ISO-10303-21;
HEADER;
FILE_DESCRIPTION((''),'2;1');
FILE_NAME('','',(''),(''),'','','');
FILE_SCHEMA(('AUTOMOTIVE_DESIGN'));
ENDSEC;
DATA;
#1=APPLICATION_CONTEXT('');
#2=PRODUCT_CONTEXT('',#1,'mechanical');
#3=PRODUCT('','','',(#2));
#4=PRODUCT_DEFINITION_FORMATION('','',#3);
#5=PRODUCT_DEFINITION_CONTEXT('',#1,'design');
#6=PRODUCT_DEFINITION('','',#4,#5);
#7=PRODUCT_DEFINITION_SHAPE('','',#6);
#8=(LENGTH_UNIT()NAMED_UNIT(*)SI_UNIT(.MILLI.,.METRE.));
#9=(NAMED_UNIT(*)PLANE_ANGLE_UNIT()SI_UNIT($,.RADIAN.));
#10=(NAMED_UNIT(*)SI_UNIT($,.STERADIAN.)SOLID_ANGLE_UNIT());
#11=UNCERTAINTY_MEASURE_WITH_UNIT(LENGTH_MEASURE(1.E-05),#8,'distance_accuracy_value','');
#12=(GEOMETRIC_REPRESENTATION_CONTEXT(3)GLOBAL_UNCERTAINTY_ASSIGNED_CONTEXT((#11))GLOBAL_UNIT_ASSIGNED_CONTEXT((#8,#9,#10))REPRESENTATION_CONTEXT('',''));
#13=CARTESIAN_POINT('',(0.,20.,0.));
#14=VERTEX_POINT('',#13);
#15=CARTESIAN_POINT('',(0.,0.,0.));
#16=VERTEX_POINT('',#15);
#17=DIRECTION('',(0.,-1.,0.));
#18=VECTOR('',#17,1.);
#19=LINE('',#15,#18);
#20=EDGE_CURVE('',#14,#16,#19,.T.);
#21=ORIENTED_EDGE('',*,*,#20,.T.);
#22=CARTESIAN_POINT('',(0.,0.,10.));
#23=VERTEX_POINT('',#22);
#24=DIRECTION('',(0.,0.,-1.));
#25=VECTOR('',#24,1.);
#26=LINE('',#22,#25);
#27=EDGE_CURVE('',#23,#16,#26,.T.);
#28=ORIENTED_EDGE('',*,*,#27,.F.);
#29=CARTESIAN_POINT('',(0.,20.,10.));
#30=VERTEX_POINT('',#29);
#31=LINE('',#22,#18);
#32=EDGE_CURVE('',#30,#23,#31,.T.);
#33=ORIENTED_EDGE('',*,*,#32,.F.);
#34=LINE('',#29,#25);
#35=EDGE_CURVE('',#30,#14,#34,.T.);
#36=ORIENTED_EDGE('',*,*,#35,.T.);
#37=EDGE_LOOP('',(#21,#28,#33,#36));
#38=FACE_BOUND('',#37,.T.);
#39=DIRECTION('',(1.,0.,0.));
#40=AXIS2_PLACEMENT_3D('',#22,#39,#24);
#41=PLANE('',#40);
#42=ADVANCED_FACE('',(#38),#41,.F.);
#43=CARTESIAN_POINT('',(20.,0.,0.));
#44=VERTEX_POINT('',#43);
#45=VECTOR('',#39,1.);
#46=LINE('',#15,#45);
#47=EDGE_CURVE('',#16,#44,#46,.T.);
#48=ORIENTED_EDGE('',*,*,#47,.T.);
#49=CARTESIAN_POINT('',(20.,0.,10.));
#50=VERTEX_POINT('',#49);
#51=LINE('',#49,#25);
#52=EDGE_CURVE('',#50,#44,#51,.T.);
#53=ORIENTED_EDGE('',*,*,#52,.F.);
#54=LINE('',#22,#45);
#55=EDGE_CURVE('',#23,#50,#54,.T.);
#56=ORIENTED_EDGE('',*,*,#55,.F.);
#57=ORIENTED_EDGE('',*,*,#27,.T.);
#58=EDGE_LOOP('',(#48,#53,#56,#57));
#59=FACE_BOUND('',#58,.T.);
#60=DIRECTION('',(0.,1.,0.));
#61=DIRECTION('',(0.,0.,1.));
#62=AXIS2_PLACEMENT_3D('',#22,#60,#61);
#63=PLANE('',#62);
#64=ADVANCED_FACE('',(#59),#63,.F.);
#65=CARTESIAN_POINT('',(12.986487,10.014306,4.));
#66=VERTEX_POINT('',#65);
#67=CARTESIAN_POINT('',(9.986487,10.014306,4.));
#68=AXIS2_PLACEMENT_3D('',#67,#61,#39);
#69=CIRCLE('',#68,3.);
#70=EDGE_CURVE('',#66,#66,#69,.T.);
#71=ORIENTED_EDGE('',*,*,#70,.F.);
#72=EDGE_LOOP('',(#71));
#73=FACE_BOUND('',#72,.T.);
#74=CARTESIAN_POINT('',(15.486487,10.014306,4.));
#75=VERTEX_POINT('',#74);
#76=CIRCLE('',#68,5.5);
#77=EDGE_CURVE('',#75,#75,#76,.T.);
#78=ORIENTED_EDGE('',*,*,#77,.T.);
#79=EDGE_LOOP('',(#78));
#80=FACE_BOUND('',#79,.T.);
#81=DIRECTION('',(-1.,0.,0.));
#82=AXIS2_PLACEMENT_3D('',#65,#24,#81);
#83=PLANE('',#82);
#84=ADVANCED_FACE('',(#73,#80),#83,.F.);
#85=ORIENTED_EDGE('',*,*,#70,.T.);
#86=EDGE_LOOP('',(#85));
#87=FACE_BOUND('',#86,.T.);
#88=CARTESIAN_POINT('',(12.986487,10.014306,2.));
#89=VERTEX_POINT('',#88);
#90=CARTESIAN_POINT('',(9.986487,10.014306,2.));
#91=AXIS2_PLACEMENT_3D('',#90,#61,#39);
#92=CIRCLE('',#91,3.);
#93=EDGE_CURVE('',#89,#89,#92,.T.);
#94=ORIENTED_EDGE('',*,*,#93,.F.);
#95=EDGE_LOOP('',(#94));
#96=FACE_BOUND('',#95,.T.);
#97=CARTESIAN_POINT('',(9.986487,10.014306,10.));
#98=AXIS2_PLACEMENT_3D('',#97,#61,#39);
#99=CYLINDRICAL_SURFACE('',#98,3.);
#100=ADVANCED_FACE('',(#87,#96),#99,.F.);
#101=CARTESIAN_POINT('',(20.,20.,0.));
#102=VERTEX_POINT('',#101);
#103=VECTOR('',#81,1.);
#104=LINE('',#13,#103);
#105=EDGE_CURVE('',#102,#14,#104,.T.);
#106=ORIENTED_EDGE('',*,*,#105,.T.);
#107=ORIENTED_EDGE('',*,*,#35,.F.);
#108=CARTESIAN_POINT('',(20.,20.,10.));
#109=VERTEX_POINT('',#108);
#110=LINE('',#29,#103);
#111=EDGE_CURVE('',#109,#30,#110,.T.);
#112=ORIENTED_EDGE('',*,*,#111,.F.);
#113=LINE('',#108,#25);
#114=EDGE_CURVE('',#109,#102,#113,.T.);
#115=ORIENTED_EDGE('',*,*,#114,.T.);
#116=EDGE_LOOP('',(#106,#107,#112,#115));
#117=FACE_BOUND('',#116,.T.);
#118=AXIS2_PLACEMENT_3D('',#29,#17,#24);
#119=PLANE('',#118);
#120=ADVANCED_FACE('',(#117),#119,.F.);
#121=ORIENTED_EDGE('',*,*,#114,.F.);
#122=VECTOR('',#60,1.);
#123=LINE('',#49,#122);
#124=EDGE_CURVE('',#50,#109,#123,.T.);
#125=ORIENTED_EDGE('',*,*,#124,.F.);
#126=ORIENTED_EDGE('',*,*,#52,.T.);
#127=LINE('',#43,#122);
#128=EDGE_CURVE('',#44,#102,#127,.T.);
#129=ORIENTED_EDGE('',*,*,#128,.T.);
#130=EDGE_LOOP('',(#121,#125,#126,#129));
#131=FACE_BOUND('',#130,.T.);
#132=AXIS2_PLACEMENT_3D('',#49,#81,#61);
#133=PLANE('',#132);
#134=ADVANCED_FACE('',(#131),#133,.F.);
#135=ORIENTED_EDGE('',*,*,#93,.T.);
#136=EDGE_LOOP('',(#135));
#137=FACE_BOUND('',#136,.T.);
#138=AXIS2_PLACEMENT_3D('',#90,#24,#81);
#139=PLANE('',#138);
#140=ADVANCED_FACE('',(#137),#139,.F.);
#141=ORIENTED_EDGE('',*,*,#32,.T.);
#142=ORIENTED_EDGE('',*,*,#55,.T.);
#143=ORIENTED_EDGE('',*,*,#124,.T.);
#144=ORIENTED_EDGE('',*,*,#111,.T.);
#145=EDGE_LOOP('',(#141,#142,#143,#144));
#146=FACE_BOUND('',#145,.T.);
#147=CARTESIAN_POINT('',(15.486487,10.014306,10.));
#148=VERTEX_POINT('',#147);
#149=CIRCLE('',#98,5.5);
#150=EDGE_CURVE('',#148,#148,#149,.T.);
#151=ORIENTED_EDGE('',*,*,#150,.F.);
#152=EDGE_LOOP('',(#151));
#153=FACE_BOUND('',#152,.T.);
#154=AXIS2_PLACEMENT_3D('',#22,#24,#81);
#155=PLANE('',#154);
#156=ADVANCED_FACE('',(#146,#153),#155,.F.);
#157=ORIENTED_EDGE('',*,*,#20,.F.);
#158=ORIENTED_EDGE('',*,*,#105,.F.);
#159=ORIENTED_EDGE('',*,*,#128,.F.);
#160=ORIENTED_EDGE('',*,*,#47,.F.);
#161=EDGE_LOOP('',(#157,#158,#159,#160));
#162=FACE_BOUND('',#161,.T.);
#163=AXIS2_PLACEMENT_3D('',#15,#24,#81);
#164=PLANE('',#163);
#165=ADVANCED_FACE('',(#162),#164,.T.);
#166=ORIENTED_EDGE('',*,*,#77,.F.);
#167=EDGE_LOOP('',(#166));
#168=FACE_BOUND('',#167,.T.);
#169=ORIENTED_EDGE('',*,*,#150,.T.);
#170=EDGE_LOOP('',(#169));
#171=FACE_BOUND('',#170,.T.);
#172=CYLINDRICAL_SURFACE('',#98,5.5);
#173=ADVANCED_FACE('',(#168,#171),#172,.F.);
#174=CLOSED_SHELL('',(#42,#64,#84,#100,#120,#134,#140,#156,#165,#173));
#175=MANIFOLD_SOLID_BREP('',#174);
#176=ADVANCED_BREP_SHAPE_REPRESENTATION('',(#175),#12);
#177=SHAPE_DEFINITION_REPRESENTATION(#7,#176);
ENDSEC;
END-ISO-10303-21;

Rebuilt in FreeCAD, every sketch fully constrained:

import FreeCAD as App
import Part
import Sketcher

V = App.Vector
Q = App.Units.Quantity


def add_polygon(sketch, points):
    """Adds a closed chain of lines whose ends are joined by coincident constraints."""
    first, n = sketch.GeometryCount, len(points)
    for a, b in zip(points, points[1:] + points[:1]):
        sketch.addGeometry(Part.LineSegment(App.Vector(*a, 0), App.Vector(*b, 0)), False)
    for i in range(n):
        sketch.addConstraint(Sketcher.Constraint("Coincident", first + i, 2, first + (i + 1) % n, 1))

doc = App.newDocument("Part")
body = doc.addObject("PartDesign::Body", "Body")

# Sketch on XY plane
sketch1 = body.newObject("Sketcher::SketchObject", "Sketch")
sketch1.AttachmentSupport = (doc.getObject("XY_Plane"), [""])
sketch1.MapMode = "FlatFace"
add_polygon(sketch1, [(0, 20), (0, 0), (20, 0), (20, 20)])  # lines 0-3
sketch1.addConstraint([
    Sketcher.Constraint("Vertical", 0),
    Sketcher.Constraint("Horizontal", 1),
    Sketcher.Constraint("Vertical", 2),
    Sketcher.Constraint("Horizontal", 3),
    Sketcher.Constraint("Coincident", 0, 2, -1, 1),
    Sketcher.Constraint("Equal", 3, 0),
    Sketcher.Constraint("DistanceX", 1, 1, 1, 2, Q("20 mm")),
])
pad1 = body.newObject("PartDesign::Pad", "Pad")
pad1.Profile = sketch1
pad1.Length = 10

# Sketch on XY plane
sketch2 = body.newObject("Sketcher::SketchObject", "Sketch001")
sketch2.AttachmentSupport = (doc.getObject("XY_Plane"), [""])
sketch2.MapMode = "FlatFace"
sketch2.AttachmentOffset = App.Placement(V(0, 0, 10), App.Rotation())
sketch2.addGeometry(Part.Circle(V(10, 10, 0), V(0, 0, 1), 3), False)
sketch2.addConstraint([
    Sketcher.Constraint("Diameter", 0, Q("6 mm")),
    Sketcher.Constraint("DistanceX", -1, 1, 0, 3, Q("9.986487 mm")),
    Sketcher.Constraint("DistanceY", -1, 1, 0, 3, Q("10.014306 mm")),
])
doc.recompute()
hole = body.newObject("PartDesign::Hole", "Hole")
hole.Profile = sketch2
hole.ThreadType = "None"
hole.Diameter = 6
hole.DepthType = "Dimension"
hole.Depth = 8
hole.DrillPoint = "Flat"
hole.HoleCutType = "Counterbore"
hole.HoleCutDiameter = 11
hole.HoleCutDepth = 6

doc.recompute()
